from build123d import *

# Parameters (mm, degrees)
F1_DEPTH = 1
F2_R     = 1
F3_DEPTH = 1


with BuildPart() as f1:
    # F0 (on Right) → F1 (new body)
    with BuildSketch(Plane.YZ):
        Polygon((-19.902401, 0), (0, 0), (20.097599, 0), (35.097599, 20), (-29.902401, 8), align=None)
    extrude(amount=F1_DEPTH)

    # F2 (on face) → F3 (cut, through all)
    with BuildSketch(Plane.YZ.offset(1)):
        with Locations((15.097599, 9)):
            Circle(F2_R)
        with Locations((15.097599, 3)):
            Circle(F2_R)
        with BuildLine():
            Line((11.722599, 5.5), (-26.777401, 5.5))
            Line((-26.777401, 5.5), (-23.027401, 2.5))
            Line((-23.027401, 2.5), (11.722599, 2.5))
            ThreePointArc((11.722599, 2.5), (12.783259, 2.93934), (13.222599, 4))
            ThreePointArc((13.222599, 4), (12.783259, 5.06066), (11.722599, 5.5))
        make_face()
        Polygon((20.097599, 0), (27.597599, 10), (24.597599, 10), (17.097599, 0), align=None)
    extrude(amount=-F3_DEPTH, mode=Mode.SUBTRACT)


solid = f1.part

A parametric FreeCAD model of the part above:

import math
import FreeCAD as App
import Part
import Sketcher
from FreeCAD import Vector
Q = App.Units.Quantity


def add_polygon(sketch, points):
    """Adds a closed chain of lines whose ends are joined by coincident constraints."""
    first, n = sketch.GeometryCount, len(points)
    for a, b in zip(points, points[1:] + points[:1]):
        sketch.addGeometry(Part.LineSegment(App.Vector(*a, 0), App.Vector(*b, 0)), False)
    for i in range(n):
        sketch.addConstraint(Sketcher.Constraint("Coincident", first + i, 2, first + (i + 1) % n, 1))

doc = App.newDocument("Part")
body = doc.addObject("PartDesign::Body", "Body")

# Sketch on YZ plane
sketch1 = body.newObject("Sketcher::SketchObject", "Sketch")
sketch1.AttachmentSupport = (doc.getObject("YZ_Plane"), [""])
sketch1.MapMode = "FlatFace"
add_polygon(sketch1, [(-19.902401, 0), (20.097599, 0), (35.097599, 20), (-29.902401, 8)])  # lines 0-3
sketch1.addConstraint([
    Sketcher.Constraint("Horizontal", 0),
    Sketcher.Constraint("PointOnObject", 0, 2, -1),
    Sketcher.Constraint("DistanceX", 0, 1, 0, 2, Q("40 mm")),
    Sketcher.Constraint("Distance", 1, Q("25 mm")),
    Sketcher.Constraint("DistanceY", -1, 1, 1, 2, Q("20 mm")),
    Sketcher.Constraint("DistanceY", -1, 1, 2, 2, Q("8 mm")),
    Sketcher.Constraint("DistanceX", 2, 2, 0, 2, Q("50 mm")),
    Sketcher.Constraint("DistanceX", -1, 1, 0, 2, Q("20.097599 mm")),
])
pad1 = body.newObject("PartDesign::Pad", "Pad")
pad1.Profile = sketch1
pad1.Length = 1

# Sketch on YZ plane
sketch2 = body.newObject("Sketcher::SketchObject", "Sketch001")
sketch2.AttachmentSupport = (doc.getObject("YZ_Plane"), [""])
sketch2.MapMode = "FlatFace"
sketch2.AttachmentOffset = App.Placement(Vector(0, 0, 1), App.Rotation())
sketch2.addGeometry(Part.Circle(Vector(15.097599, 9, 0), Vector(0, 0, 1), 1), False)  # 0
sketch2.addGeometry(Part.Circle(Vector(15.097599, 3, 0), Vector(0, 0, 1), 1), False)  # 1
sketch2.addGeometry(Part.LineSegment(Vector(11.722599, 5.5, 0), Vector(-26.777401, 5.5, 0)), False)  # 2
sketch2.addGeometry(Part.LineSegment(Vector(-26.777401, 5.5, 0), Vector(-23.027401, 2.5, 0)), False)  # 3
sketch2.addGeometry(Part.LineSegment(Vector(-23.027401, 2.5, 0), Vector(11.722599, 2.5, 0)), False)  # 4
sketch2.addGeometry(Part.ArcOfCircle(Part.Circle(Vector(11.722598, 4.000001, 0), Vector(0, 0, 1), 1.500001), math.radians(-89.999978), math.radians(-0.000022)), False)  # 5
sketch2.addGeometry(Part.ArcOfCircle(Part.Circle(Vector(11.722598, 3.999999, 0), Vector(0, 0, 1), 1.500001), math.radians(0.000022), math.radians(89.999978)), False)  # 6
add_polygon(sketch2, [(20.097599, 0), (27.597599, 10), (24.597599, 10), (17.097599, 0)])  # lines 7-10
sketch2.addConstraint([
    Sketcher.Constraint("Coincident", 2, 2, 3, 1),
    Sketcher.Constraint("Coincident", 3, 2, 4, 1),
    Sketcher.Constraint("Tangent", 4, 2, 5, 1),
    Sketcher.Constraint("Tangent", 5, 2, 6, 1),
    Sketcher.Constraint("Tangent", 6, 2, 2, 1),
    Sketcher.Constraint("Horizontal", 2),
    Sketcher.Constraint("Horizontal", 4),
    Sketcher.Constraint("Horizontal", 8),
    Sketcher.Constraint("Horizontal", 10),
    Sketcher.Constraint("Equal", 0, 1),
    Sketcher.Constraint("Equal", 5, 6),
    Sketcher.Constraint("PointOnObject", 9, 2, -1),
    Sketcher.Constraint("Parallel", 7, 9),
    Sketcher.Constraint("Horizontal", 6, 3, 5, 2),
    Sketcher.Constraint("Vertical", 0, 3, 1, 3),
    Sketcher.Constraint("Diameter", 0, Q("2 mm")),
    Sketcher.Constraint("Radius", 5, Q("1.500001 mm")),
    Sketcher.Constraint("DistanceX", 8, 2, 8, 1, Q("3 mm")),
    Sketcher.Constraint("DistanceX", 2, 2, 2, 1, Q("38.5 mm")),
    Sketcher.Constraint("DistanceY", -1, 1, 0, 3, Q("9 mm")),
    Sketcher.Constraint("DistanceY", -1, 1, 1, 3, Q("3 mm")),
    Sketcher.Constraint("DistanceY", -1, 1, 5, 3, Q("4.000001 mm")),
    Sketcher.Constraint("DistanceY", -1, 1, 7, 2, Q("10 mm")),
    Sketcher.Constraint("DistanceX", 1, 3, 9, 2, Q("2 mm")),
    Sketcher.Constraint("Distance", 7, Q("12.5 mm")),
    Sketcher.Constraint("DistanceX", 4, 1, 4, 2, Q("34.75 mm")),
    Sketcher.Constraint("DistanceX", 5, 3, 1, 3, Q("3.375001 mm")),
    Sketcher.Constraint("DistanceX", -1, 1, 0, 3, Q("15.097599 mm")),
])
pocket1 = body.newObject("PartDesign::Pocket", "Pocket")
pocket1.Profile = sketch2
pocket1.Type = "ThroughAll"

doc.recompute()
